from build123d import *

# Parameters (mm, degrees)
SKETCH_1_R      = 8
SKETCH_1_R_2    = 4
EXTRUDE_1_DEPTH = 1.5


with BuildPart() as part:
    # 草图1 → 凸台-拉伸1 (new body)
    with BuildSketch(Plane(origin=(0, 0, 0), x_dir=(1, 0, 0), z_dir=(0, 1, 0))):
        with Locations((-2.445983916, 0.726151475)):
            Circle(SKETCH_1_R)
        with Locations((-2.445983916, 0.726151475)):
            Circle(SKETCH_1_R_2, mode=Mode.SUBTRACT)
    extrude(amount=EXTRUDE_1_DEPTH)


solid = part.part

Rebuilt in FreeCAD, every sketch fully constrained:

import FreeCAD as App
import Part
import Sketcher
from FreeCAD import Vector

doc = App.newDocument("Part")
body = doc.addObject("PartDesign::Body", "Body")

sketch1 = body.newObject("Sketcher::SketchObject", "Sketch")
sketch1.AttachmentSupport = (doc.getObject("XZ_Plane"), [""])
sketch1.MapMode = "FlatFace"
sketch1.addGeometry(Part.Circle(Vector(-2.4, -0.7, 0), Vector(0, 0, 1), 8), False)
sketch1.addGeometry(Part.Circle(Vector(-2.4, -0.7, 0), Vector(0, 0, 1), 4), False)
sketch1.addConstraint(Sketcher.Constraint("Coincident", 1, 3, 0, 3))
sketch1.addConstraint(Sketcher.Constraint("Diameter", 0, 16.0))
sketch1.addConstraint(Sketcher.Constraint("Diameter", 1, 8.0))
sketch1.addConstraint(Sketcher.Constraint("DistanceY", 0, 3, -1, 1, 0.726151))
sketch1.addConstraint(Sketcher.Constraint("DistanceX", 0, 3, -1, 1, 2.445984))
pad1 = body.newObject("PartDesign::Pad", "Pad")
pad1.Profile = sketch1
pad1.Length = 1.5
pad1.Reversed = True

doc.recompute()
